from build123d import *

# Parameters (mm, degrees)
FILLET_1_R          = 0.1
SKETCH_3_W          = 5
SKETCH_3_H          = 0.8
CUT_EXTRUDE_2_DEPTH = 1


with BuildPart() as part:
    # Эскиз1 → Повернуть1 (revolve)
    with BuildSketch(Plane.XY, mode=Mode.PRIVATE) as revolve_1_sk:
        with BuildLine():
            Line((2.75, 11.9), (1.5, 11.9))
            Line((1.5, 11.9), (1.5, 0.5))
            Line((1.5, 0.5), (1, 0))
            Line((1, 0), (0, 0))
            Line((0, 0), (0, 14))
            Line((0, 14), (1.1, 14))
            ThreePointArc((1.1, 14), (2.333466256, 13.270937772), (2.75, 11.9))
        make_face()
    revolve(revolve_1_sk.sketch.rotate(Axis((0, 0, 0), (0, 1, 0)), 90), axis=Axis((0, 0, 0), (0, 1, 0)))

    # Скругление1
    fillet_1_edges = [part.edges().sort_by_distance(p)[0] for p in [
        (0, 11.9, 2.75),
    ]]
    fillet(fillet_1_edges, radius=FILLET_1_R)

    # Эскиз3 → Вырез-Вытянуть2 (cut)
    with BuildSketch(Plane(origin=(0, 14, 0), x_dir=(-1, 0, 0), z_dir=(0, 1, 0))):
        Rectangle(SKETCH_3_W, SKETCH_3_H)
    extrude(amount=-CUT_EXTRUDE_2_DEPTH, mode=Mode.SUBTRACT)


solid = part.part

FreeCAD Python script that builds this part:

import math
import FreeCAD as App
import Part
import Sketcher
Q = App.Units.Quantity


def edges_at(feature, points):
    """Names of the edges that pass closest to the given points."""
    edges = feature.Shape.Edges
    near = lambda p: min(range(len(edges)), key=lambda i: edges[i].distToShape(Part.Vertex(*p))[0])
    return sorted({f"Edge{near(p) + 1}" for p in points})


def add_polygon(sketch, points):
    """Adds a closed chain of lines whose ends are joined by coincident constraints."""
    first, n = sketch.GeometryCount, len(points)
    for a, b in zip(points, points[1:] + points[:1]):
        sketch.addGeometry(Part.LineSegment(App.Vector(*a, 0), App.Vector(*b, 0)), False)
    for i in range(n):
        sketch.addConstraint(Sketcher.Constraint("Coincident", first + i, 2, first + (i + 1) % n, 1))

doc = App.newDocument("Part")
body = doc.addObject("PartDesign::Body", "Body")

sketch1 = body.newObject("Sketcher::SketchObject", "Sketch")
sketch1.AttachmentSupport = (doc.getObject("XY_Plane"), [""])
sketch1.MapMode = "FlatFace"
sketch1.addGeometry(Part.LineSegment(App.Vector(1.5, 11.9, 0), App.Vector(2.75, 11.9, 0)), False)
sketch1.addGeometry(Part.ArcOfCircle(Part.Circle(App.Vector(0.779672, 12.0501, 0), App.Vector(0, 0, 1), 1.976037), math.radians(-4.356385), math.radians(80.670838)), False)
sketch1.addGeometry(Part.LineSegment(App.Vector(1.1, 14, 0), App.Vector(0, 14, 0)), False)
sketch1.addGeometry(Part.LineSegment(App.Vector(0, 14, 0), App.Vector(0, 0, 0)), False)
sketch1.addGeometry(Part.LineSegment(App.Vector(0, 0, 0), App.Vector(1, 0, 0)), False)
sketch1.addGeometry(Part.LineSegment(App.Vector(1, 0, 0), App.Vector(1.5, 0.5, 0)), False)
sketch1.addGeometry(Part.LineSegment(App.Vector(1.5, 0.5, 0), App.Vector(1.5, 11.9, 0)), False)
sketch1.addConstraint(Sketcher.Constraint("Coincident", 0, 2, 1, 1))
sketch1.addConstraint(Sketcher.Constraint("Coincident", 1, 2, 2, 1))
sketch1.addConstraint(Sketcher.Constraint("Coincident", 2, 2, 3, 1))
sketch1.addConstraint(Sketcher.Constraint("Coincident", 3, 2, 4, 1))
sketch1.addConstraint(Sketcher.Constraint("Coincident", 4, 2, 5, 1))
sketch1.addConstraint(Sketcher.Constraint("Coincident", 5, 2, 6, 1))
sketch1.addConstraint(Sketcher.Constraint("Coincident", 6, 2, 0, 1))
sketch1.addConstraint(Sketcher.Constraint("Horizontal", 0))
sketch1.addConstraint(Sketcher.Constraint("Horizontal", 2))
sketch1.addConstraint(Sketcher.Constraint("Vertical", 3))
sketch1.addConstraint(Sketcher.Constraint("Horizontal", 4))
sketch1.addConstraint(Sketcher.Constraint("Vertical", 6))
sketch1.addConstraint(Sketcher.Constraint("Coincident", 3, 2, -1, 1))
sketch1.addConstraint(Sketcher.Constraint("DistanceX", 4, 1, 4, 2, Q("1 mm")))
sketch1.addConstraint(Sketcher.Constraint("DistanceY", 3, 2, 3, 1, Q("14 mm")))
sketch1.addConstraint(Sketcher.Constraint("Angle", 5, Q("45 deg")))
sketch1.addConstraint(Sketcher.Constraint("DistanceX", 2, 2, 2, 1, Q("1.1 mm")))
sketch1.addConstraint(Sketcher.Constraint("DistanceY", 6, 1, 6, 2, Q("11.4 mm")))
sketch1.addConstraint(Sketcher.Constraint("DistanceX", 0, 1, 0, 2, Q("1.25 mm")))
sketch1.addConstraint(Sketcher.Constraint("DistanceY", -1, 1, 0, 2, Q("11.9 mm")))
sketch1.addConstraint(Sketcher.Constraint("Radius", 1, Q("1.976037 mm")))
revolution = body.newObject("PartDesign::Revolution", "Revolution")
revolution.Profile = sketch1
revolution.ReferenceAxis = (sketch1, ["V_Axis"])
revolution.Angle = 360
doc.recompute()

fillet = body.newObject("PartDesign::Fillet", "Fillet")
fillet.Base = (revolution, edges_at(revolution, [(0, 11.9, 2.75)]))
fillet.Radius = 0.1

sketch2 = body.newObject("Sketcher::SketchObject", "Sketch001")
sketch2.AttachmentSupport = (doc.getObject("XZ_Plane"), [""])
sketch2.MapMode = "FlatFace"
sketch2.AttachmentOffset = App.Placement(App.Vector(0, 0, -14), App.Rotation())
add_polygon(sketch2, [(2.5, 0.4), (2.5, -0.4), (-2.5, -0.4), (-2.5, 0.4)])
sketch2.addConstraint(Sketcher.Constraint("Vertical", 0))
sketch2.addConstraint(Sketcher.Constraint("Horizontal", 1))
sketch2.addConstraint(Sketcher.Constraint("Vertical", 2))
sketch2.addConstraint(Sketcher.Constraint("Horizontal", 3))
sketch2.addConstraint(Sketcher.Constraint("Symmetric", 0, 2, 2, 2, -1, 1))
sketch2.addConstraint(Sketcher.Constraint("DistanceX", 1, 2, 1, 1, Q("5 mm")))
sketch2.addConstraint(Sketcher.Constraint("DistanceY", 0, 2, 0, 1, Q("0.8 mm")))
pocket1 = body.newObject("PartDesign::Pocket", "Pocket")
pocket1.Profile = sketch2
pocket1.Length = 1
pocket1.Reversed = True

doc.recompute()
